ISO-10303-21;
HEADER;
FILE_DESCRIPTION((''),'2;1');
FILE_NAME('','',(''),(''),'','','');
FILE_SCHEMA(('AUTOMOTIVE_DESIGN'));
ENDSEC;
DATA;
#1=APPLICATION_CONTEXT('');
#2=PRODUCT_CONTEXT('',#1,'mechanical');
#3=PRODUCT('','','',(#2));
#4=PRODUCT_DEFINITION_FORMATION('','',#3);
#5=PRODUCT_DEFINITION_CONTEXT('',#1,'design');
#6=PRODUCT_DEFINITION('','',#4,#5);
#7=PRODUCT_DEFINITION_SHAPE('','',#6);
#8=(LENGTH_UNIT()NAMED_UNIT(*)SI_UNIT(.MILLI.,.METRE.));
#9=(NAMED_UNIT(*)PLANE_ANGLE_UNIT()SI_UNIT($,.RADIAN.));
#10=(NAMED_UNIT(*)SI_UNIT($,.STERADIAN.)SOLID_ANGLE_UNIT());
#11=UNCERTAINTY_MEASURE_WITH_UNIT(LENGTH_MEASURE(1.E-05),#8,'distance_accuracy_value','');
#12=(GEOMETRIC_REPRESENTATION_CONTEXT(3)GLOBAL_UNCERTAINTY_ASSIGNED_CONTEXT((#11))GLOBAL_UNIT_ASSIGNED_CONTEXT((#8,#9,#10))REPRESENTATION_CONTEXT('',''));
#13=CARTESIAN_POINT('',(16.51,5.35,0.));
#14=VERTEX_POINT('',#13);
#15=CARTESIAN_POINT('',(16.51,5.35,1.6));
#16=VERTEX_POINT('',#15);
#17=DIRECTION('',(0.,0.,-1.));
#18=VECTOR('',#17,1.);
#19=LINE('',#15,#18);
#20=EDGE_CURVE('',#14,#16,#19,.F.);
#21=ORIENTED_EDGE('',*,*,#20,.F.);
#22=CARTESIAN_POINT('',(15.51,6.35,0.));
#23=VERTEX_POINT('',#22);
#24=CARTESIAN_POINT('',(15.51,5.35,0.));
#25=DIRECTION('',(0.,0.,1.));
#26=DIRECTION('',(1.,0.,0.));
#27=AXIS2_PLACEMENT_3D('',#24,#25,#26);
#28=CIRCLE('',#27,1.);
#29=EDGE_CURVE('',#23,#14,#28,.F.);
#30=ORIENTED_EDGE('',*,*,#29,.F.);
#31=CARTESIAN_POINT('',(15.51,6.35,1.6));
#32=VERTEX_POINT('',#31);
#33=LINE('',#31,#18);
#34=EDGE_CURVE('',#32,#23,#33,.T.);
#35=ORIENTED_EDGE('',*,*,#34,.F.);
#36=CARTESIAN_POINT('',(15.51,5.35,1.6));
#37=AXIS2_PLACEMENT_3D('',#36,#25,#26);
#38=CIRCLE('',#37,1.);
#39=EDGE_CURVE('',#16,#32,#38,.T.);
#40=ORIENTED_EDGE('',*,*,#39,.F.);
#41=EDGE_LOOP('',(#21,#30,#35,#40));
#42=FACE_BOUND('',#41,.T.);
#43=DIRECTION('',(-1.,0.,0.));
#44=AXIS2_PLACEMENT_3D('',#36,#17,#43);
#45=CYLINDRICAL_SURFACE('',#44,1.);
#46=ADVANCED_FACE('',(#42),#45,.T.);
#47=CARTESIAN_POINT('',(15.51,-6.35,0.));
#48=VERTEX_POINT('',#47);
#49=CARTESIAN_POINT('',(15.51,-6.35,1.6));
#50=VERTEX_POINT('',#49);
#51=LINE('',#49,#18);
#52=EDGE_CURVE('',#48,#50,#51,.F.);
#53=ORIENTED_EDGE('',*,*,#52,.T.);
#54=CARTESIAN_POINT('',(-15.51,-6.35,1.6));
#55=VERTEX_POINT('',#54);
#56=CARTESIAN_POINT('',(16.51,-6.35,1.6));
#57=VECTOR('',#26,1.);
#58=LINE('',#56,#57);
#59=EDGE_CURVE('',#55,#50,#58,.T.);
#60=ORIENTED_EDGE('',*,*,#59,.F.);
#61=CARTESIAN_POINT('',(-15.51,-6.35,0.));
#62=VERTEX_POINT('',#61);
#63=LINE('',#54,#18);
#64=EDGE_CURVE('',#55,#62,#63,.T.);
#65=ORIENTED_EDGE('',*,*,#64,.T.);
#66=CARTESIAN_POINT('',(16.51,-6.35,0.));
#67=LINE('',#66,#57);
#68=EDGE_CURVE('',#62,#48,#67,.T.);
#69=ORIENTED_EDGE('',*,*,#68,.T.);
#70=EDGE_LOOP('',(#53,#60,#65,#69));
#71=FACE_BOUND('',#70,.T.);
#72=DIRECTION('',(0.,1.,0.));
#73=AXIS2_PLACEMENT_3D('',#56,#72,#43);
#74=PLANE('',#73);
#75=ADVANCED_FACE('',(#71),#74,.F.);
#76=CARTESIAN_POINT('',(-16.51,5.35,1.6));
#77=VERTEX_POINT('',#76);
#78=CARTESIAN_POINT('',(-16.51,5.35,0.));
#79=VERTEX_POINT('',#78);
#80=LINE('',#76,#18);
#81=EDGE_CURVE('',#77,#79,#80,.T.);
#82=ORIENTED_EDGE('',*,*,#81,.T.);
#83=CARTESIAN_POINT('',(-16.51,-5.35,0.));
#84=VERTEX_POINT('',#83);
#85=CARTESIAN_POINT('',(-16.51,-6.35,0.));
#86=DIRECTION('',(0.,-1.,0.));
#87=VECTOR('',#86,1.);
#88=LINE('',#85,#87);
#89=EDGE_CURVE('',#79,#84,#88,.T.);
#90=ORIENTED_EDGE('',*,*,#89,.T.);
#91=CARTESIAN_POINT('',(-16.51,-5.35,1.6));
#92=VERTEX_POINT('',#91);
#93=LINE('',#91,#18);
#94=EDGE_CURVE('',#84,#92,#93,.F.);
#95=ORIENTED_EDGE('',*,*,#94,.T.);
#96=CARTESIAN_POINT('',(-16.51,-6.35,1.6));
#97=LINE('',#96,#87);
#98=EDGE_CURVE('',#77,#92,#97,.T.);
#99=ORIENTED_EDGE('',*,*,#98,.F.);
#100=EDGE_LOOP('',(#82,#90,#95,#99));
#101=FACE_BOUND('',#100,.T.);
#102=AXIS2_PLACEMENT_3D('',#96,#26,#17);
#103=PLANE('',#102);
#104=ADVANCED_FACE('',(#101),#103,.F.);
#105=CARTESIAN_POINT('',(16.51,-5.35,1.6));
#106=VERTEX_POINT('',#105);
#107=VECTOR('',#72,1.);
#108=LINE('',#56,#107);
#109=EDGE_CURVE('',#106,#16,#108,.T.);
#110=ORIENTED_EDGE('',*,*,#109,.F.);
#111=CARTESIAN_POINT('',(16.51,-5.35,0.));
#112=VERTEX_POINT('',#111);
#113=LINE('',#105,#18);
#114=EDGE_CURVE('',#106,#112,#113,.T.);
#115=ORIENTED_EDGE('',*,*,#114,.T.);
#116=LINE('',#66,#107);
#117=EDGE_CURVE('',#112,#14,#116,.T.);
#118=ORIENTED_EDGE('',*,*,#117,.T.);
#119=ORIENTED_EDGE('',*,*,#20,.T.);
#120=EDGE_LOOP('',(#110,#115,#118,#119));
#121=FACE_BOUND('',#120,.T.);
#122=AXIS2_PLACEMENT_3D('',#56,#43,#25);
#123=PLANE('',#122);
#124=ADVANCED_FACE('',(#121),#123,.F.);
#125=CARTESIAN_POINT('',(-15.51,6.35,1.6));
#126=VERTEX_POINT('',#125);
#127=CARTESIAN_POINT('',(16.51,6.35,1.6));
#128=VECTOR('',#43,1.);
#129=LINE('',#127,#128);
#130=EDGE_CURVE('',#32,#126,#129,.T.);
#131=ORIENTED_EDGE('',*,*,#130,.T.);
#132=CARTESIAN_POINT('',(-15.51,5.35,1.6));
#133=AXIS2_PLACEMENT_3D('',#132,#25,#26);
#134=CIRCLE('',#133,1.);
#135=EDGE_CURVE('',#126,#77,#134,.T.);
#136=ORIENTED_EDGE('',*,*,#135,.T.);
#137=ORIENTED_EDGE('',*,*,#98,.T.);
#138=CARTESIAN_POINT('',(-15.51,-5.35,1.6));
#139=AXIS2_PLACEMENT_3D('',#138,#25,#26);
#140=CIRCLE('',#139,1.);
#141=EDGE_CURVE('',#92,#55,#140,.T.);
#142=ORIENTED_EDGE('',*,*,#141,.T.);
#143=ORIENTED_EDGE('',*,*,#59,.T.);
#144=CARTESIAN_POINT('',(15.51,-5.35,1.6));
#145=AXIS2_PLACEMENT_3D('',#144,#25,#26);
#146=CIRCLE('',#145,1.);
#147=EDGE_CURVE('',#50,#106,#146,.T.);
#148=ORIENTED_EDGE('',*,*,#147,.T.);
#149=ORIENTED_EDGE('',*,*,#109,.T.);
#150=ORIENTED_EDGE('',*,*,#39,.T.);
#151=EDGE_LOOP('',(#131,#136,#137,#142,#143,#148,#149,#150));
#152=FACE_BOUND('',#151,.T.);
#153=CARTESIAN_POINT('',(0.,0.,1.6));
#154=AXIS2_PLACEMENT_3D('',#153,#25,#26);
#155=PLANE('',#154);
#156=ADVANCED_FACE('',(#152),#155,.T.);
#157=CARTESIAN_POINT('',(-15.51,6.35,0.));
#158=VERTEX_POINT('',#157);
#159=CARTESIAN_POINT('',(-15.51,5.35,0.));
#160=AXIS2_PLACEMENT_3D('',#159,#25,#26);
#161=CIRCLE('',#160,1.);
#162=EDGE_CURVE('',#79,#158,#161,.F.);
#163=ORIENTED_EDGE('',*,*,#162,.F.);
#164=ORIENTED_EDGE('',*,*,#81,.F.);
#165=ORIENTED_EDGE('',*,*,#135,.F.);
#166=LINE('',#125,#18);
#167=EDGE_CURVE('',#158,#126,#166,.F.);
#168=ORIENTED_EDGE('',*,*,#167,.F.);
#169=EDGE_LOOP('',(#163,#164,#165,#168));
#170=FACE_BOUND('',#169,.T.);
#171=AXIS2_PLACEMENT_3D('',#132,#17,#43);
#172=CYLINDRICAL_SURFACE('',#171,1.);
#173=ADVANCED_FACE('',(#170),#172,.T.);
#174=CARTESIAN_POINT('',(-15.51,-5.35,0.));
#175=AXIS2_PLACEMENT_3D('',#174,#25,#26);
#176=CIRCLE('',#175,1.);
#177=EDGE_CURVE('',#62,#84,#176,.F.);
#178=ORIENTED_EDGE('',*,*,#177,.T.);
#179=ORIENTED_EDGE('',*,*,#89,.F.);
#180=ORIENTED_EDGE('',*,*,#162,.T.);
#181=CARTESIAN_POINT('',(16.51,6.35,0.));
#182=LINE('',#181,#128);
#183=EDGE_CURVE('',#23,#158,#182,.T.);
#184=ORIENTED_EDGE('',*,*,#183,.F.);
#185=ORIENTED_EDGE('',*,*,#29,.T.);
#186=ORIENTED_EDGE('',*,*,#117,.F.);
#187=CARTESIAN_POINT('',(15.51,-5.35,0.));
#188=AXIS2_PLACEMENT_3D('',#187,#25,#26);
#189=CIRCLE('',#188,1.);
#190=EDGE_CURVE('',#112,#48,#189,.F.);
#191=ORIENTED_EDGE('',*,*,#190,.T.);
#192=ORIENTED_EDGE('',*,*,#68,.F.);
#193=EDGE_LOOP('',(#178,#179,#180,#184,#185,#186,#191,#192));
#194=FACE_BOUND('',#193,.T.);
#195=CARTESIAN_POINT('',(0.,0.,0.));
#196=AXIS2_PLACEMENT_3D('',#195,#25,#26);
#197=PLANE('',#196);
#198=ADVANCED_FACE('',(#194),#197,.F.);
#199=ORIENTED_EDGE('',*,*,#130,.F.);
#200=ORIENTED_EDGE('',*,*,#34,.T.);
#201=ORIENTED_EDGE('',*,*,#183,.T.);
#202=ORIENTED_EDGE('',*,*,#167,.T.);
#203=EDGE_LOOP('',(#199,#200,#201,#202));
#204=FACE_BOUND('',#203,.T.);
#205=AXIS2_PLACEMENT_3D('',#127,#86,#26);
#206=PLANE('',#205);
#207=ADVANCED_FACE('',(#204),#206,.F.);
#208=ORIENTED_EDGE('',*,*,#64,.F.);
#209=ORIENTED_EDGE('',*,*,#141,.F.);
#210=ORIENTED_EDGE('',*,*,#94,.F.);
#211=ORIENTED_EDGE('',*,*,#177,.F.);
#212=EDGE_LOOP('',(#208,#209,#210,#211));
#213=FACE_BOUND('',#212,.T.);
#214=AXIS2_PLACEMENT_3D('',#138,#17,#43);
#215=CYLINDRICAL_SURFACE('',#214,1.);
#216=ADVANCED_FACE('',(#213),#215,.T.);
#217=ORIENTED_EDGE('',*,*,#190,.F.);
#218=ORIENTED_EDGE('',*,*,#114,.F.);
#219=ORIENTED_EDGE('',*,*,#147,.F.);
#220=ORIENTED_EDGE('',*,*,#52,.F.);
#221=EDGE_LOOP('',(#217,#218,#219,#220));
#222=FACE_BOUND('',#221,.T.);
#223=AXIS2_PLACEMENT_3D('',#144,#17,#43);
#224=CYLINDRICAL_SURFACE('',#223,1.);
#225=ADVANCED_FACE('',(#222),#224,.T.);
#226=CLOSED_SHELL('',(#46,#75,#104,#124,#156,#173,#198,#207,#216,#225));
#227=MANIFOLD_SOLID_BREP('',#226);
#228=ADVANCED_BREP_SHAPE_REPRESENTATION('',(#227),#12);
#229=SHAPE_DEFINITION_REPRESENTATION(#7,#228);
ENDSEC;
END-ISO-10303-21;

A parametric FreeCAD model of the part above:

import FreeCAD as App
import Part
import Sketcher

V = App.Vector


def edges_at(feature, points):
    """Names of the edges that pass closest to the given points."""
    edges = feature.Shape.Edges
    near = lambda p: min(range(len(edges)), key=lambda i: edges[i].distToShape(Part.Vertex(*p))[0])
    return sorted({f"Edge{near(p) + 1}" for p in points})


def add_polygon(sketch, points):
    """Adds a closed chain of lines whose ends are joined by coincident constraints."""
    first, n = sketch.GeometryCount, len(points)
    for a, b in zip(points, points[1:] + points[:1]):
        sketch.addGeometry(Part.LineSegment(App.Vector(*a, 0), App.Vector(*b, 0)), False)
    for i in range(n):
        sketch.addConstraint(Sketcher.Constraint("Coincident", first + i, 2, first + (i + 1) % n, 1))

doc = App.newDocument("Part")
body = doc.addObject("PartDesign::Body", "Body")

sketch1 = body.newObject("Sketcher::SketchObject", "Sketch")
sketch1.AttachmentSupport = (doc.getObject("XY_Plane"), [""])
sketch1.MapMode = "FlatFace"
add_polygon(sketch1, [(-17, 6), (-17, -6), (17, -6), (17, 6)])
sketch1.addConstraint([
    Sketcher.Constraint("Vertical", 0),
    Sketcher.Constraint("Horizontal", 1),
    Sketcher.Constraint("Vertical", 2),
    Sketcher.Constraint("Horizontal", 3),
    Sketcher.Constraint("Symmetric", 0, 2, 2, 2, -1, 1),
    Sketcher.Constraint("DistanceY", 0, 2, 0, 1, 12.7),
    Sketcher.Constraint("DistanceX", 1, 1, 1, 2, 33.02),
])
pad1 = body.newObject("PartDesign::Pad", "Pad")
pad1.Profile = sketch1
pad1.Length = 1.6
doc.recompute()

fillet = body.newObject("PartDesign::Fillet", "Fillet")
fillet.Base = (pad1, edges_at(pad1, [
    (-16.51, 6.35, 0.8),
    (16.51, 6.35, 0.8),
    (16.51, -6.35, 0.8),
    (-16.51, -6.35, 0.8),
]))
fillet.Radius = 1

doc.recompute()
